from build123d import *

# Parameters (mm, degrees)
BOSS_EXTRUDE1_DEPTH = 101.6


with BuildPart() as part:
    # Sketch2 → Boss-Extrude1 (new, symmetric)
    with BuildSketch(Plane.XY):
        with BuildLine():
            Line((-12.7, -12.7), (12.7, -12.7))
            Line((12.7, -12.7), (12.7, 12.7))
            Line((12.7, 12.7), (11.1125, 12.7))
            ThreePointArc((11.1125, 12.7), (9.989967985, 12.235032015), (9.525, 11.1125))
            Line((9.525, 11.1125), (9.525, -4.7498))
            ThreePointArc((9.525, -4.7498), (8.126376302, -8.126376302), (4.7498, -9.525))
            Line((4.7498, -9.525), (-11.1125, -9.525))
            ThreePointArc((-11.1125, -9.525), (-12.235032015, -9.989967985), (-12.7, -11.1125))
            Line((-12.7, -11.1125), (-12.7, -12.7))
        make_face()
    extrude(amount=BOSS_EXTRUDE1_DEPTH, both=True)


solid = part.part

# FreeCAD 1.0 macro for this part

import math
import FreeCAD as App
import Part
import Sketcher
from FreeCAD import Vector
Q = App.Units.Quantity

doc = App.newDocument("Part")
body = doc.addObject("PartDesign::Body", "Body")

sketch1 = doc.addObject("Sketcher::SketchObject", "Sketch")
body.addObject(sketch1)
sketch1.AttachmentSupport = (doc.XY_Plane, [""])
sketch1.MapMode = "FlatFace"
sketch1.addGeometry(Part.LineSegment(Vector(-12.7, -12.7, 0), Vector(12.7, -12.7, 0)), False)
sketch1.addGeometry(Part.LineSegment(Vector(12.7, -12.7, 0), Vector(12.7, 12.7, 0)), False)
sketch1.addGeometry(Part.LineSegment(Vector(12.7, 12.7, 0), Vector(11.1, 12.7, 0)), False)
sketch1.addGeometry(Part.ArcOfCircle(Part.Circle(Vector(11.1, 11.1, 0), Vector(0, 0, 1), 1.6), math.radians(90), math.radians(180)), False)
sketch1.addGeometry(Part.LineSegment(Vector(9.5, 11.1, 0), Vector(9.5, -4.7, 0)), False)
sketch1.addGeometry(Part.ArcOfCircle(Part.Circle(Vector(4.7, -4.7, 0), Vector(0, 0, 1), 4.8), math.radians(-90), math.radians(0)), False)
sketch1.addGeometry(Part.LineSegment(Vector(4.7, -9.5, 0), Vector(-11.1, -9.5, 0)), False)
sketch1.addGeometry(Part.ArcOfCircle(Part.Circle(Vector(-11.1, -11.1, 0), Vector(0, 0, 1), 1.6), math.radians(90), math.radians(180)), False)
sketch1.addGeometry(Part.LineSegment(Vector(-12.7, -11.1, 0), Vector(-12.7, -12.7, 0)), False)
sketch1.addConstraint(Sketcher.Constraint("Coincident", 0, 2, 1, 1))
sketch1.addConstraint(Sketcher.Constraint("Coincident", 1, 2, 2, 1))
sketch1.addConstraint(Sketcher.Constraint("Tangent", 2, 2, 3, 1))
sketch1.addConstraint(Sketcher.Constraint("Tangent", 3, 2, 4, 1))
sketch1.addConstraint(Sketcher.Constraint("Tangent", 4, 2, 5, 2))
sketch1.addConstraint(Sketcher.Constraint("Tangent", 5, 1, 6, 1))
sketch1.addConstraint(Sketcher.Constraint("Tangent", 6, 2, 7, 1))
sketch1.addConstraint(Sketcher.Constraint("Tangent", 7, 2, 8, 1))
sketch1.addConstraint(Sketcher.Constraint("Coincident", 8, 2, 0, 1))
sketch1.addConstraint(Sketcher.Constraint("Horizontal", 0))
sketch1.addConstraint(Sketcher.Constraint("Vertical", 1))
sketch1.addConstraint(Sketcher.Constraint("Horizontal", 2))
sketch1.addConstraint(Sketcher.Constraint("Vertical", 4))
sketch1.addConstraint(Sketcher.Constraint("Horizontal", 6))
sketch1.addConstraint(Sketcher.Constraint("Vertical", 8))
sketch1.addConstraint(Sketcher.Constraint("Equal", 3, 7))
sketch1.addConstraint(Sketcher.Constraint("Symmetric", 3, 3, 7, 3, -1, 1))
sketch1.addConstraint(Sketcher.Constraint("Symmetric", 1, 2, 8, 2, -1, 1))
sketch1.addConstraint(Sketcher.Constraint("Equal", 0, 1))
sketch1.addConstraint(Sketcher.Constraint("DistanceX", 0, 1, 0, 2, Q("1 in")))
sketch1.addConstraint(Sketcher.Constraint("Radius", 3, Q("0.0625 in")))
sketch1.addConstraint(Sketcher.Constraint("Radius", 5, Q("0.188 in")))
pad1 = doc.addObject("PartDesign::Pad", "Pad")
body.addObject(pad1)
pad1.Profile = sketch1
pad1.Length = Q("8 in")
pad1.Midplane = True

doc.recompute()
